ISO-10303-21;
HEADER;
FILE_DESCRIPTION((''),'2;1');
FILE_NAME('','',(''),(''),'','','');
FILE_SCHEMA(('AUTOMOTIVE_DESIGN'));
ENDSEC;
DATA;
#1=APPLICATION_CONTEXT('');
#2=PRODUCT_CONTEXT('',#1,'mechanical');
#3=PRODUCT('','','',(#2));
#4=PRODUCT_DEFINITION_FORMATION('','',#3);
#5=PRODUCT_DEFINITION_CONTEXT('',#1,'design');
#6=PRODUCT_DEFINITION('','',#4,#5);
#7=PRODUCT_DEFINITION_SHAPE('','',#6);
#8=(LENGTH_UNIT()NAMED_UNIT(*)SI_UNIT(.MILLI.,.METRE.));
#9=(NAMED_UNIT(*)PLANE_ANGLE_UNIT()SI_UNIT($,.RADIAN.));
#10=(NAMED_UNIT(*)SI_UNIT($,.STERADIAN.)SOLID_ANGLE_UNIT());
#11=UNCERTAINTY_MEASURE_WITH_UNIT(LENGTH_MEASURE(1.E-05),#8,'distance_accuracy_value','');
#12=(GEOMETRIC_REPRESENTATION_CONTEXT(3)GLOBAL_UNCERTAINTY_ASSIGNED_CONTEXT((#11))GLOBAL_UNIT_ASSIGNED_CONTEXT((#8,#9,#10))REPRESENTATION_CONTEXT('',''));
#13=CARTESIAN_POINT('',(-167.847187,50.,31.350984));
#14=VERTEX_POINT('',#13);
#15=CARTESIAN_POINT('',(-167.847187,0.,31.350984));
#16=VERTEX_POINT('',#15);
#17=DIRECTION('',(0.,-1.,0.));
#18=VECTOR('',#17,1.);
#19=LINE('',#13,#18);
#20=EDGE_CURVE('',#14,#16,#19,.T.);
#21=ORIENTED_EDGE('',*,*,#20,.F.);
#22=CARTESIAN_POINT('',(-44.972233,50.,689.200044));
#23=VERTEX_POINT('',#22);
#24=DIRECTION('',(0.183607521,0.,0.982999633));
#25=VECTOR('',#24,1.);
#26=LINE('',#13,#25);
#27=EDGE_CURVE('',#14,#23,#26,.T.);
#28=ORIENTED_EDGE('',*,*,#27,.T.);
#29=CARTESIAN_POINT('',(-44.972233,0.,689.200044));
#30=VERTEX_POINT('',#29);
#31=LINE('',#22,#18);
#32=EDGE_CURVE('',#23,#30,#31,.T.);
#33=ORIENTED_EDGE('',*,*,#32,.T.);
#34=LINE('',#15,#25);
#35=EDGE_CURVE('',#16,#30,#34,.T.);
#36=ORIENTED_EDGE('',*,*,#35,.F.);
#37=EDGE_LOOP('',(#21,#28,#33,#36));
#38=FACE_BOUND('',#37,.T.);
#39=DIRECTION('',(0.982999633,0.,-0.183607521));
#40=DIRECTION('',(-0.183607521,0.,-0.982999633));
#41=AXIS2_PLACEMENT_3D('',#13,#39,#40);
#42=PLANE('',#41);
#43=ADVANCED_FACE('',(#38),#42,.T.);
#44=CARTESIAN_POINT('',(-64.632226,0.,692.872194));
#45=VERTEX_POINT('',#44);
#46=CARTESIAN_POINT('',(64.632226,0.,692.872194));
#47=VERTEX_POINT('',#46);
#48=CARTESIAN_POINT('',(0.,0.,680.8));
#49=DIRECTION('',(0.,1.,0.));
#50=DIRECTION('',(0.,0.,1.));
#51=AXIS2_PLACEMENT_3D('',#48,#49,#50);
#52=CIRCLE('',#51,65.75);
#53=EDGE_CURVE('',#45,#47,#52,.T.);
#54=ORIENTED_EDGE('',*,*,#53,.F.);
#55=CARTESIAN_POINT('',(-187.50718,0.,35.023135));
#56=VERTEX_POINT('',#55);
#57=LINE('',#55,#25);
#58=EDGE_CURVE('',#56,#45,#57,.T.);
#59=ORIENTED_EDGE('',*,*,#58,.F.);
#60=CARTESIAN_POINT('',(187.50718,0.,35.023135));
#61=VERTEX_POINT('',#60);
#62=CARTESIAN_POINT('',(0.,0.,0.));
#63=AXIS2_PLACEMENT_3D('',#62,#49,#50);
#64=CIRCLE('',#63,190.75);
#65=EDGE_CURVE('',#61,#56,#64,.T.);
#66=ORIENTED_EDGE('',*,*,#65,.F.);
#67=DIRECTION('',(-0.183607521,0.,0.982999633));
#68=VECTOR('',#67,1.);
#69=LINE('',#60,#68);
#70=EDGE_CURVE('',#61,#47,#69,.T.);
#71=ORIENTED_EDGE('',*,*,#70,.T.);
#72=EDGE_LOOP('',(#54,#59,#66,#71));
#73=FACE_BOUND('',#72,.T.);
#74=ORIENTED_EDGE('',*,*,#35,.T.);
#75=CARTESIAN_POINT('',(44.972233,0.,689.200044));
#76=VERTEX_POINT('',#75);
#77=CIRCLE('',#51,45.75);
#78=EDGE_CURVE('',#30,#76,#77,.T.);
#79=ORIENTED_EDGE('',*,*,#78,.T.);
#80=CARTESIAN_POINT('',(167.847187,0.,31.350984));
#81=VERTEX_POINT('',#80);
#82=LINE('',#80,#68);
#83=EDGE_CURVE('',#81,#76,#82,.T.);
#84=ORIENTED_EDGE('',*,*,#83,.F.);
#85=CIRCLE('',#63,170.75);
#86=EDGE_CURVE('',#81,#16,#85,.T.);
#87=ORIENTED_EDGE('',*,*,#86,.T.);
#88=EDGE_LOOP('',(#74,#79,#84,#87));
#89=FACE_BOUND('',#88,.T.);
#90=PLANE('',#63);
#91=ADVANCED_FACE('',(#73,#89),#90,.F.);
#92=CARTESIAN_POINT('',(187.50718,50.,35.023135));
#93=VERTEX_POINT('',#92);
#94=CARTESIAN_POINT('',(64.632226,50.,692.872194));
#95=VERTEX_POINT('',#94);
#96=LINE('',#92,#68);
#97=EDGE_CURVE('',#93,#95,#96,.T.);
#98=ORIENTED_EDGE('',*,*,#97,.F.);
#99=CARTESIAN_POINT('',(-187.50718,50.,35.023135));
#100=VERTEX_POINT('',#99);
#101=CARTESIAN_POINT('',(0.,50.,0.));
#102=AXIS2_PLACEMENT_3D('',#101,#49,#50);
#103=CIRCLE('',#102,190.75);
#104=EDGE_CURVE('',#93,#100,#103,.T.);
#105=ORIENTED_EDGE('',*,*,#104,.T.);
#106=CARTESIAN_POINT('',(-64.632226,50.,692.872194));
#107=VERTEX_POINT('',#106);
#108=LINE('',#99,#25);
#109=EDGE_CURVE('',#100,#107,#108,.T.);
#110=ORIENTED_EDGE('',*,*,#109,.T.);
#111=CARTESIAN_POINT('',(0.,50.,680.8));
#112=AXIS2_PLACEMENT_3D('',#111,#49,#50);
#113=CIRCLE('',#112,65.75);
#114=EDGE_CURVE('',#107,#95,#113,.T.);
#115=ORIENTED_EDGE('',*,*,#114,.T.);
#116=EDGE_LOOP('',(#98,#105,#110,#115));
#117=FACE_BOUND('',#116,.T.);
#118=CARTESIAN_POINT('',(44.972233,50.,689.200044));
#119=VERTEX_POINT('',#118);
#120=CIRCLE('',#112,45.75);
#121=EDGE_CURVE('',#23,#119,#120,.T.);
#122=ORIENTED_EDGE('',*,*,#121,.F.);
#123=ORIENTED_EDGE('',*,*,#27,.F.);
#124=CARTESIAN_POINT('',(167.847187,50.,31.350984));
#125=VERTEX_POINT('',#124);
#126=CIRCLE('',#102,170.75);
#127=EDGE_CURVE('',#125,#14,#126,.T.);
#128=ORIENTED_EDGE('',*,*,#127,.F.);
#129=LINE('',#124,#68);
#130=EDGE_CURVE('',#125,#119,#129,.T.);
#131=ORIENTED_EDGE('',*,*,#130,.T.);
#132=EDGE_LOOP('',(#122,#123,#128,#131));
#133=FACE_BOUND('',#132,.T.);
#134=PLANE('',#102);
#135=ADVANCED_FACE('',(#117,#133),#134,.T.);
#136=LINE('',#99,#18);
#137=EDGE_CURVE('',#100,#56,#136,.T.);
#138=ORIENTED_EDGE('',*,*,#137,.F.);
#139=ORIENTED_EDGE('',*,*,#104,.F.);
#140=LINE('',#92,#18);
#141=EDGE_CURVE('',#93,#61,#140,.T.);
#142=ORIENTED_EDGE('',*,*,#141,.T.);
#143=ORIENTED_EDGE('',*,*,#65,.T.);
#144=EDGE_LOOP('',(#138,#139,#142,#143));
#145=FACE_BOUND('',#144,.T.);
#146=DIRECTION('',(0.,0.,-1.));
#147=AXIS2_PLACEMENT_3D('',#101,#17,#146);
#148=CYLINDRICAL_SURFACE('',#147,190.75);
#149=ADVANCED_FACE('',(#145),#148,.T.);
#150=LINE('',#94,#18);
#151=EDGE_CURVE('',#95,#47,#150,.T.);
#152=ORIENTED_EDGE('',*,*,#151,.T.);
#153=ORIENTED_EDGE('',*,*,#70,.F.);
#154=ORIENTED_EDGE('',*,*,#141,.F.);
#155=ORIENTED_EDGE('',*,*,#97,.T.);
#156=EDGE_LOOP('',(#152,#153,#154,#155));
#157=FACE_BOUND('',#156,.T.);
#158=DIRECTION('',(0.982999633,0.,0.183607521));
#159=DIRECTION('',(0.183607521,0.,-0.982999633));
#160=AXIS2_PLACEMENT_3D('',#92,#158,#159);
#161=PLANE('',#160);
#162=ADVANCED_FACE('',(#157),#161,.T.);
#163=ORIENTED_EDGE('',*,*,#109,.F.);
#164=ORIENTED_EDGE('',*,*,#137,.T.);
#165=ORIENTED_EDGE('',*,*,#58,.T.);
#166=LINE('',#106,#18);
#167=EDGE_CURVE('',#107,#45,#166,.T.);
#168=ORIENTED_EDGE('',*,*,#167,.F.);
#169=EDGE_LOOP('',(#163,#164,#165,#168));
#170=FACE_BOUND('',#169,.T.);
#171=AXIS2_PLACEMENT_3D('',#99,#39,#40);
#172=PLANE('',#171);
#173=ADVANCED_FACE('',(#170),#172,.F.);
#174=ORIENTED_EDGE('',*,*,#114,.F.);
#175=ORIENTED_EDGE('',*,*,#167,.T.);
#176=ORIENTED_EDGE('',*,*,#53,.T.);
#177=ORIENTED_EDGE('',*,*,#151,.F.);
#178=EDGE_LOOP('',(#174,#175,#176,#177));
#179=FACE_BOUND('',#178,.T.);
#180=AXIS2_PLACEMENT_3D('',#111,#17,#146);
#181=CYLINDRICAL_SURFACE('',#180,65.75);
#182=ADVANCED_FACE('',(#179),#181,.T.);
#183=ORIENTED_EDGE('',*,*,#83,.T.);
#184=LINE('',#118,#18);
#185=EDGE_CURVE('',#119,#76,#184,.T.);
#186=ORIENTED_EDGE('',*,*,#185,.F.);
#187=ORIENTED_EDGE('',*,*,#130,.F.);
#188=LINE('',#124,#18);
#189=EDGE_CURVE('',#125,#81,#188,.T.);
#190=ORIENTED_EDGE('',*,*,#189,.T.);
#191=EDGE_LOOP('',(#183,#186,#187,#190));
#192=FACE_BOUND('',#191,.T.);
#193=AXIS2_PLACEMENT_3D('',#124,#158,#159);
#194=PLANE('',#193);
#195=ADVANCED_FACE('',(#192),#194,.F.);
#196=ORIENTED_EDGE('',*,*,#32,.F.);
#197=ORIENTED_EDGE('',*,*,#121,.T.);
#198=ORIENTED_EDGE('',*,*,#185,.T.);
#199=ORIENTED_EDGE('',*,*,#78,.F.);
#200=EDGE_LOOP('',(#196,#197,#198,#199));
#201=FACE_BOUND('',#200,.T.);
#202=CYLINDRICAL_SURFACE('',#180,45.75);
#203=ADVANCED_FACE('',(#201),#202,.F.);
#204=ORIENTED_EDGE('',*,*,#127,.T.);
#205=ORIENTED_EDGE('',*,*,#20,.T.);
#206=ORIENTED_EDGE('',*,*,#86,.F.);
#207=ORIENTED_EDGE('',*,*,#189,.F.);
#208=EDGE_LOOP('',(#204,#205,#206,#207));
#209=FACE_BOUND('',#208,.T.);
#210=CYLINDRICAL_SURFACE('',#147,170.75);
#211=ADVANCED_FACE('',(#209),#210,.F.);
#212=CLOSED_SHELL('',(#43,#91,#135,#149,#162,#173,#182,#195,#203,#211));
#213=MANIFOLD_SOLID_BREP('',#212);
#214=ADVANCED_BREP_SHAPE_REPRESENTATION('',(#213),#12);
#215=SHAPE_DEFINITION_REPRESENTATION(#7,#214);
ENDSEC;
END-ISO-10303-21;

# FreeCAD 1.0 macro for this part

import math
import FreeCAD as App
import Part
import Sketcher
from FreeCAD import Vector

doc = App.newDocument("Part")
body = doc.addObject("PartDesign::Body", "Body")

# Sketch on XZ plane
sketch1 = body.newObject("Sketcher::SketchObject", "Sketch")
sketch1.AttachmentSupport = (doc.getObject("XZ_Plane"), [""])
sketch1.MapMode = "FlatFace"
sketch1.addGeometry([
    Part.LineSegment(Vector(-188, 35, 0), Vector(-65, 693, 0)),  # 0
    Part.ArcOfCircle(Part.Circle(Vector(0, 681, 0), Vector(0, 0, 1), 66), math.radians(11), math.radians(169)),  # 1
    Part.LineSegment(Vector(65, 693, 0), Vector(188, 35, 0)),  # 2
    Part.ArcOfCircle(Part.Circle(Vector(0, 0, 0), Vector(0, 0, 1), 191), math.radians(169), math.radians(371)),  # 3
    Part.ArcOfCircle(Part.Circle(Vector(0, 681, 0), Vector(0, 0, 1), 46), math.radians(11), math.radians(169)),  # 4
    Part.LineSegment(Vector(-45, 689, 0), Vector(-168, 31, 0)),  # 5
    Part.ArcOfCircle(Part.Circle(Vector(0, 0, 0), Vector(0, 0, 1), 171), math.radians(169), math.radians(371)),  # 6
    Part.LineSegment(Vector(168, 31, 0), Vector(45, 689, 0)),  # 7
], False)
sketch1.addConstraint([
    Sketcher.Constraint("Tangent", 0, 2, 1, 2),
    Sketcher.Constraint("Tangent", 1, 1, 2, 1),
    Sketcher.Constraint("Tangent", 2, 2, 3, 2),
    Sketcher.Constraint("Tangent", 3, 1, 0, 1),
    Sketcher.Constraint("Tangent", 4, 2, 5, 1),
    Sketcher.Constraint("Tangent", 5, 2, 6, 1),
    Sketcher.Constraint("Tangent", 6, 2, 7, 1),
    Sketcher.Constraint("Tangent", 7, 2, 4, 1),
    Sketcher.Constraint("Coincident", 3, 3, -1, 1),
    Sketcher.Constraint("Coincident", 6, 3, -1, 1),
    Sketcher.Constraint("Coincident", 4, 3, 1, 3),
    Sketcher.Constraint("PointOnObject", 1, 3, -2),
    Sketcher.Constraint("Parallel", 0, 5),
    Sketcher.Constraint("Radius", 1, 65.75),
    Sketcher.Constraint("Radius", 3, 190.75),
    Sketcher.Constraint("Radius", 4, 45.75),
    Sketcher.Constraint("DistanceY", -1, 1, 1, 3, 680.8),
])
pad1 = body.newObject("PartDesign::Pad", "Pad")
pad1.Profile = sketch1
pad1.Length = 50
pad1.Reversed = True

doc.recompute()
